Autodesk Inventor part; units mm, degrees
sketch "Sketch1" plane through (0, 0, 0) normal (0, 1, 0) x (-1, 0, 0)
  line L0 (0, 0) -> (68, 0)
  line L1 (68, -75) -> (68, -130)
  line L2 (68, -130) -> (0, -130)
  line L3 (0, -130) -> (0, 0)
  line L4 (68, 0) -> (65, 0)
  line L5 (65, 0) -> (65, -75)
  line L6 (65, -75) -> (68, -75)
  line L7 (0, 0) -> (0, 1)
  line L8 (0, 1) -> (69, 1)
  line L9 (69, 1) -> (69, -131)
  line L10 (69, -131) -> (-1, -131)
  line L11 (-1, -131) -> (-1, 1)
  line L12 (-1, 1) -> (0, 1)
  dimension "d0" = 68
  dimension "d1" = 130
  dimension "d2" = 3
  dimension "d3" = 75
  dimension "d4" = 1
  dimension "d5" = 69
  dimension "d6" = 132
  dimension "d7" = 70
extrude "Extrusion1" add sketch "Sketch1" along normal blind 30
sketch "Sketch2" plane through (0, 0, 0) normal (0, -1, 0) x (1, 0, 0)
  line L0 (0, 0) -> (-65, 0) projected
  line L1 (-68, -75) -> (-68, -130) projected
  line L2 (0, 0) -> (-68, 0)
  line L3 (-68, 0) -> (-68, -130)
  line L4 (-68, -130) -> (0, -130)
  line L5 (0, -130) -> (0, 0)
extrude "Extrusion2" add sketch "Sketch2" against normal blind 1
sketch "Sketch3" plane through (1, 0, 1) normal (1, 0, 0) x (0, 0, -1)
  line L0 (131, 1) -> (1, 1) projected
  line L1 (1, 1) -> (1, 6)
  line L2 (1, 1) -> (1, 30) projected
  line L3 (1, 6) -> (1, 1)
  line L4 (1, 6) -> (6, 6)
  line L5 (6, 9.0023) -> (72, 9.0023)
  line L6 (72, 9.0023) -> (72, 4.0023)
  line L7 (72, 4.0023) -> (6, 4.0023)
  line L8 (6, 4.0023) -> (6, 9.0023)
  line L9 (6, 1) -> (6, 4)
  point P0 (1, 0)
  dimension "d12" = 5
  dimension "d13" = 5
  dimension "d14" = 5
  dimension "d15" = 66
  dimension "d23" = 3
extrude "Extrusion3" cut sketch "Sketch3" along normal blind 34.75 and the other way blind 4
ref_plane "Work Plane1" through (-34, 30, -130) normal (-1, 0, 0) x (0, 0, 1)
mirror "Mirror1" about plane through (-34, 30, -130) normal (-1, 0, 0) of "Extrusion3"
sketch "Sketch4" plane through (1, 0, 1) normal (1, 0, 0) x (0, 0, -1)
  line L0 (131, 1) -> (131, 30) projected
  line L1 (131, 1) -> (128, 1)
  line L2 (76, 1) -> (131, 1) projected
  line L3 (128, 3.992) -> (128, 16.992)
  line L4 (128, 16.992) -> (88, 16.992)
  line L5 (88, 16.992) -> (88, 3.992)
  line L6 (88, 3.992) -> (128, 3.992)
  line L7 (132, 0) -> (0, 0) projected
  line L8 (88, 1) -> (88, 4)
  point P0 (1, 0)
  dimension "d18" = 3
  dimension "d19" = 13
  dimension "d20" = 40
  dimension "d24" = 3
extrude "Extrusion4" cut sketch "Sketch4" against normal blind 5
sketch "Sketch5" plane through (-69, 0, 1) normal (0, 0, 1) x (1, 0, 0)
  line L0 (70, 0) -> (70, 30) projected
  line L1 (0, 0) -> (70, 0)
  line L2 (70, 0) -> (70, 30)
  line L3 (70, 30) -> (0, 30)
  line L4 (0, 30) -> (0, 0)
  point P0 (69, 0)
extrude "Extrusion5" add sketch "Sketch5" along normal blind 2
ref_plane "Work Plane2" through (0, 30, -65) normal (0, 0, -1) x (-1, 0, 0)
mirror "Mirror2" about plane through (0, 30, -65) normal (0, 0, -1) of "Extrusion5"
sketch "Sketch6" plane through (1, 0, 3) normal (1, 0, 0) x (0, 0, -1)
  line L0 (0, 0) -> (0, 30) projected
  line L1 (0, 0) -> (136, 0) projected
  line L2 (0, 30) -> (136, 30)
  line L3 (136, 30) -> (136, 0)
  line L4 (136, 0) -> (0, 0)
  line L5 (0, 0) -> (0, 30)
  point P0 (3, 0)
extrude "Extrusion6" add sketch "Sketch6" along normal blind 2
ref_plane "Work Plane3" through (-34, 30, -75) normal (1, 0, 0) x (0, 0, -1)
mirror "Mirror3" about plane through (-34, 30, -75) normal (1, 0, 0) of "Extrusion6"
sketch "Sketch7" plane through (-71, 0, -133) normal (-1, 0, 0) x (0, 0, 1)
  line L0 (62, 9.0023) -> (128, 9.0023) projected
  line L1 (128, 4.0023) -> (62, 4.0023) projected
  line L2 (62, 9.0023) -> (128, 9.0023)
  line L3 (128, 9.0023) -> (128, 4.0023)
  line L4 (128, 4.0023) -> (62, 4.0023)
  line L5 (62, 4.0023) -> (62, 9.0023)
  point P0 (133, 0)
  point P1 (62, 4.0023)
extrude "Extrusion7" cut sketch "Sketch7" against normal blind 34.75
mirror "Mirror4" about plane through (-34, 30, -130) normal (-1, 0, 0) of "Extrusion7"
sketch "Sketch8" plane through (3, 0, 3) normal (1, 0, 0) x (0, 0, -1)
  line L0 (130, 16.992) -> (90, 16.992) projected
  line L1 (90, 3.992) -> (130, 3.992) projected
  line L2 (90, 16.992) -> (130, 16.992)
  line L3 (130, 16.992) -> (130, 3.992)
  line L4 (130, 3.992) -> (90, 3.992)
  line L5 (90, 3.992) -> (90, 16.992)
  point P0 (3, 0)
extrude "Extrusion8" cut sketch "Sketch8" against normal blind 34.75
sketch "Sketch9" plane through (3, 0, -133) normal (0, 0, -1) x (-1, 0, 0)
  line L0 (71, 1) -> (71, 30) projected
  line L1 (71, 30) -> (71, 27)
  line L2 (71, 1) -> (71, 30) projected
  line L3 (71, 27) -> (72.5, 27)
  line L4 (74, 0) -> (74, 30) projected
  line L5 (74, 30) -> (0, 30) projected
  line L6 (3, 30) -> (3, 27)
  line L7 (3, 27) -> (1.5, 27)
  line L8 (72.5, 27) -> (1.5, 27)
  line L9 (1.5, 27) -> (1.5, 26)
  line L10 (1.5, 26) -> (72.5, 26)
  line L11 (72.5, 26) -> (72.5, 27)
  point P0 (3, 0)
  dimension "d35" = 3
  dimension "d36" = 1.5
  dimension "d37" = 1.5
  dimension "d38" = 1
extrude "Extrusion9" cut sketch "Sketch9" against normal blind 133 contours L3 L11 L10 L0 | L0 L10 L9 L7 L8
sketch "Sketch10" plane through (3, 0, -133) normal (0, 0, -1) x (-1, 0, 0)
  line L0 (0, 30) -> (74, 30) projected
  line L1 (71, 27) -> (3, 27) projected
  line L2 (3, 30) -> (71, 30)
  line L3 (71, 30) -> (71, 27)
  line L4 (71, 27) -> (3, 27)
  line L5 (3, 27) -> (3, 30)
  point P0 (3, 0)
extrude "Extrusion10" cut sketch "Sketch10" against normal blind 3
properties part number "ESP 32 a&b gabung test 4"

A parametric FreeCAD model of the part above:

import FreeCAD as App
import Part
import Sketcher


def add_polygon(sketch, points):
    """Adds a closed chain of lines whose ends are joined by coincident constraints."""
    first, n = sketch.GeometryCount, len(points)
    for a, b in zip(points, points[1:] + points[:1]):
        sketch.addGeometry(Part.LineSegment(App.Vector(*a, 0), App.Vector(*b, 0)), False)
    for i in range(n):
        sketch.addConstraint(Sketcher.Constraint("Coincident", first + i, 2, first + (i + 1) % n, 1))

doc = App.newDocument("Part")
body = doc.addObject("PartDesign::Body", "Body")

# Sketch on XZ plane
sketch1 = body.newObject("Sketcher::SketchObject", "Sketch")
sketch1.AttachmentSupport = (doc.getObject("XZ_Plane"), [""])
sketch1.MapMode = "FlatFace"
add_polygon(sketch1, [(-69, 1), (0, 1), (1, 1), (1, -131), (-69, -131)])  # lines 0-4
add_polygon(sketch1, [(0, -130), (0, 0), (-65, 0), (-65, -75), (-68, -75), (-68, -130)])  # lines 5-10
sketch1.addConstraint([
    Sketcher.Constraint("Horizontal", 0),
    Sketcher.Constraint("Horizontal", 1),
    Sketcher.Constraint("Vertical", 2),
    Sketcher.Constraint("Horizontal", 3),
    Sketcher.Constraint("Vertical", 4),
    Sketcher.Constraint("Vertical", 5),
    Sketcher.Constraint("Horizontal", 6),
    Sketcher.Constraint("Vertical", 7),
    Sketcher.Constraint("Horizontal", 8),
    Sketcher.Constraint("Vertical", 9),
    Sketcher.Constraint("Horizontal", 10),
    Sketcher.Constraint("Coincident", 5, 2, -1, 1),
    Sketcher.Constraint("PointOnObject", 0, 2, -2),
    Sketcher.Constraint("DistanceX", 0, 1, 0, 2, 69.0),
    Sketcher.Constraint("DistanceX", 1, 1, 1, 2, 1.0),
    Sketcher.Constraint("DistanceX", 8, 2, 8, 1, 3.0),
    Sketcher.Constraint("DistanceX", 10, 1, 10, 2, 68.0),
    Sketcher.Constraint("DistanceY", 2, 2, 2, 1, 132.0),
    Sketcher.Constraint("DistanceY", 5, 1, 5, 2, 130.0),
    Sketcher.Constraint("DistanceY", 7, 2, 7, 1, 75.0),
    Sketcher.Constraint("DistanceY", -1, 1, 0, 2, 1.0),
])
pad1 = body.newObject("PartDesign::Pad", "Pad")
pad1.Profile = sketch1
pad1.Length = 30
pad1.Reversed = True

# Sketch on XZ plane
sketch2 = body.newObject("Sketcher::SketchObject", "Sketch001")
sketch2.AttachmentSupport = (doc.getObject("XZ_Plane"), [""])
sketch2.MapMode = "FlatFace"
add_polygon(sketch2, [(0, -130), (0, 0), (-68, 0), (-68, -130)])  # lines 0-3
sketch2.addConstraint([
    Sketcher.Constraint("Vertical", 0),
    Sketcher.Constraint("Horizontal", 1),
    Sketcher.Constraint("Vertical", 2),
    Sketcher.Constraint("Horizontal", 3),
    Sketcher.Constraint("Coincident", 0, 2, -1, 1),
    Sketcher.Constraint("DistanceX", 1, 2, 1, 1, 68.0),
    Sketcher.Constraint("DistanceY", 0, 1, 0, 2, 130.0),
])
pad2 = body.newObject("PartDesign::Pad", "Pad001")
pad2.Profile = sketch2
pad2.Length = 1
pad2.Reversed = True

# Sketch on YZ plane
sketch3 = body.newObject("Sketcher::SketchObject", "Sketch002")
sketch3.AttachmentSupport = (doc.getObject("YZ_Plane"), [""])
sketch3.MapMode = "FlatFace"
sketch3.AttachmentOffset = App.Placement(App.Vector(0, 0, 1), App.Rotation())
add_polygon(sketch3, [(9.0023, -71), (9.0023, -5), (4.0023, -5), (4.0023, -71)])  # lines 0-3
sketch3.addConstraint([
    Sketcher.Constraint("Vertical", 0),
    Sketcher.Constraint("Horizontal", 1),
    Sketcher.Constraint("Vertical", 2),
    Sketcher.Constraint("Horizontal", 3),
    Sketcher.Constraint("DistanceX", 1, 2, 1, 1, 5.0),
    Sketcher.Constraint("DistanceY", 0, 1, 0, 2, 66.0),
    Sketcher.Constraint("DistanceY", 0, 2, -1, 1, 5.0),
    Sketcher.Constraint("DistanceX", -1, 1, 0, 2, 9.0023),
])
pocket1 = body.newObject("PartDesign::Pocket", "Pocket")
pocket1.Profile = sketch3
pocket1.Type = "TwoLengths"
pocket1.Length = 34.75
pocket1.Length2 = 4
pocket1.Reversed = True
doc.recompute()

datumplane = body.newObject("PartDesign::Plane", "DatumPlane")
datumplane.AttachmentSupport = (doc.getObject("YZ_Plane"), [""])
datumplane.MapMode = "FlatFace"
datumplane.AttachmentOffset = App.Placement(App.Vector(0, 0, -34), App.Rotation())
mirrored = body.newObject("PartDesign::Mirrored", "Mirrored")
mirrored.Originals = [pocket1]
mirrored.MirrorPlane = (datumplane, [""])
body.Tip = mirrored

# Sketch on YZ plane
sketch4 = body.newObject("Sketcher::SketchObject", "Sketch003")
sketch4.AttachmentSupport = (doc.getObject("YZ_Plane"), [""])
sketch4.MapMode = "FlatFace"
sketch4.AttachmentOffset = App.Placement(App.Vector(0, 0, 1), App.Rotation())
add_polygon(sketch4, [(3.992, -87), (3.992, -127), (16.992, -127), (16.992, -87)])  # lines 0-3
sketch4.addConstraint([
    Sketcher.Constraint("Vertical", 0),
    Sketcher.Constraint("Horizontal", 1),
    Sketcher.Constraint("Vertical", 2),
    Sketcher.Constraint("Horizontal", 3),
    Sketcher.Constraint("DistanceX", 1, 1, 1, 2, 13.0),
    Sketcher.Constraint("DistanceY", 0, 2, 0, 1, 40.0),
    Sketcher.Constraint("DistanceY", 0, 2, -1, 1, 127.0),
    Sketcher.Constraint("DistanceX", -1, 1, 0, 2, 3.992),
])
pocket2 = body.newObject("PartDesign::Pocket", "Pocket001")
pocket2.Profile = sketch4
pocket2.Length = 5

# Sketch on XY plane
sketch5 = body.newObject("Sketcher::SketchObject", "Sketch004")
sketch5.AttachmentSupport = (doc.getObject("XY_Plane"), [""])
sketch5.MapMode = "FlatFace"
sketch5.AttachmentOffset = App.Placement(App.Vector(0, 0, 1), App.Rotation())
add_polygon(sketch5, [(-69, 0), (1, 0), (1, 30), (-69, 30)])  # lines 0-3
sketch5.addConstraint([
    Sketcher.Constraint("Horizontal", 0),
    Sketcher.Constraint("Vertical", 1),
    Sketcher.Constraint("Horizontal", 2),
    Sketcher.Constraint("Vertical", 3),
    Sketcher.Constraint("PointOnObject", 0, 2, -1),
    Sketcher.Constraint("DistanceX", 0, 1, 0, 2, 70.0),
    Sketcher.Constraint("DistanceY", 1, 1, 1, 2, 30.0),
    Sketcher.Constraint("DistanceX", -1, 1, 0, 2, 1.0),
])
pad3 = body.newObject("PartDesign::Pad", "Pad002")
pad3.Profile = sketch5
pad3.Length = 2
doc.recompute()

datumplane2 = body.newObject("PartDesign::Plane", "DatumPlane001")
datumplane2.AttachmentSupport = (doc.getObject("XY_Plane"), [""])
datumplane2.MapMode = "FlatFace"
datumplane2.AttachmentOffset = App.Placement(App.Vector(0, 0, -65), App.Rotation())
mirrored2 = body.newObject("PartDesign::Mirrored", "Mirrored001")
mirrored2.Originals = [pad3]
mirrored2.MirrorPlane = (datumplane2, [""])
body.Tip = mirrored2

# Sketch on YZ plane
sketch6 = body.newObject("Sketcher::SketchObject", "Sketch005")
sketch6.AttachmentSupport = (doc.getObject("YZ_Plane"), [""])
sketch6.MapMode = "FlatFace"
sketch6.AttachmentOffset = App.Placement(App.Vector(0, 0, 1), App.Rotation())
add_polygon(sketch6, [(30, 3), (0, 3), (0, -133), (30, -133)])  # lines 0-3
sketch6.addConstraint([
    Sketcher.Constraint("Horizontal", 0),
    Sketcher.Constraint("Vertical", 1),
    Sketcher.Constraint("Horizontal", 2),
    Sketcher.Constraint("Vertical", 3),
    Sketcher.Constraint("PointOnObject", 0, 2, -2),
    Sketcher.Constraint("DistanceX", 0, 2, 0, 1, 30.0),
    Sketcher.Constraint("DistanceY", 1, 2, 1, 1, 136.0),
    Sketcher.Constraint("DistanceY", -1, 1, 0, 2, 3.0),
])
pad4 = body.newObject("PartDesign::Pad", "Pad003")
pad4.Profile = sketch6
pad4.Length = 2
doc.recompute()

datumplane3 = body.newObject("PartDesign::Plane", "DatumPlane002")
datumplane3.AttachmentSupport = (doc.getObject("YZ_Plane"), [""])
datumplane3.MapMode = "FlatFace"
datumplane3.AttachmentOffset = App.Placement(App.Vector(0, 0, -34), App.Rotation())
mirrored3 = body.newObject("PartDesign::Mirrored", "Mirrored002")
mirrored3.Originals = [pad4]
mirrored3.MirrorPlane = (datumplane3, [""])
body.Tip = mirrored3

# Sketch on YZ plane
sketch7 = body.newObject("Sketcher::SketchObject", "Sketch006")
sketch7.AttachmentSupport = (doc.getObject("YZ_Plane"), [""])
sketch7.MapMode = "FlatFace"
sketch7.AttachmentOffset = App.Placement(App.Vector(0, 0, -71), App.Rotation())
add_polygon(sketch7, [(9.0023, -5), (9.0023, -71), (4.0023, -71), (4.0023, -5)])  # lines 0-3
sketch7.addConstraint([
    Sketcher.Constraint("Vertical", 0),
    Sketcher.Constraint("Horizontal", 1),
    Sketcher.Constraint("Vertical", 2),
    Sketcher.Constraint("Horizontal", 3),
    Sketcher.Constraint("DistanceX", 1, 2, 1, 1, 5.0),
    Sketcher.Constraint("DistanceY", 0, 2, 0, 1, 66.0),
    Sketcher.Constraint("DistanceY", 0, 2, -1, 1, 71.0),
    Sketcher.Constraint("DistanceX", -1, 1, 0, 2, 9.0023),
])
pocket3 = body.newObject("PartDesign::Pocket", "Pocket002")
pocket3.Profile = sketch7
pocket3.Length = 34.75
pocket3.Reversed = True
doc.recompute()

datumplane4 = body.newObject("PartDesign::Plane", "DatumPlane003")
datumplane4.AttachmentSupport = (doc.getObject("YZ_Plane"), [""])
datumplane4.MapMode = "FlatFace"
datumplane4.AttachmentOffset = App.Placement(App.Vector(0, 0, -34), App.Rotation())
mirrored4 = body.newObject("PartDesign::Mirrored", "Mirrored003")
mirrored4.Originals = [pocket3]
mirrored4.MirrorPlane = (datumplane4, [""])
body.Tip = mirrored4

# Sketch on YZ plane
sketch8 = body.newObject("Sketcher::SketchObject", "Sketch007")
sketch8.AttachmentSupport = (doc.getObject("YZ_Plane"), [""])
sketch8.MapMode = "FlatFace"
sketch8.AttachmentOffset = App.Placement(App.Vector(0, 0, 3), App.Rotation())
add_polygon(sketch8, [(3.992, -127), (16.992, -127), (16.992, -87), (3.992, -87)])  # lines 0-3
sketch8.addConstraint([
    Sketcher.Constraint("Horizontal", 0),
    Sketcher.Constraint("Vertical", 1),
    Sketcher.Constraint("Horizontal", 2),
    Sketcher.Constraint("Vertical", 3),
    Sketcher.Constraint("DistanceX", 0, 1, 0, 2, 13.0),
    Sketcher.Constraint("DistanceY", 1, 1, 1, 2, 40.0),
    Sketcher.Constraint("DistanceY", 0, 2, -1, 1, 127.0),
    Sketcher.Constraint("DistanceX", -1, 1, 0, 2, 16.992),
])
pocket4 = body.newObject("PartDesign::Pocket", "Pocket003")
pocket4.Profile = sketch8
pocket4.Length = 34.75

# Sketch on XY plane
sketch9 = body.newObject("Sketcher::SketchObject", "Sketch008")
sketch9.AttachmentSupport = (doc.getObject("XY_Plane"), [""])
sketch9.MapMode = "FlatFace"
sketch9.AttachmentOffset = App.Placement(App.Vector(0, 0, -133), App.Rotation())
add_polygon(sketch9, [(-69.5, 27), (1.5, 27), (1.5, 26), (-69.5, 26)])  # lines 0-3
sketch9.addConstraint([
    Sketcher.Constraint("Horizontal", 0),
    Sketcher.Constraint("Vertical", 1),
    Sketcher.Constraint("Horizontal", 2),
    Sketcher.Constraint("Vertical", 3),
    Sketcher.Constraint("DistanceY", 1, 2, 1, 1, 1.0),
    Sketcher.Constraint("DistanceX", -1, 1, 0, 2, 1.5),
    Sketcher.Constraint("DistanceX", 0, 1, 0, 2, 71.0),
    Sketcher.Constraint("DistanceY", -1, 1, 0, 2, 27.0),
])
pocket5 = body.newObject("PartDesign::Pocket", "Pocket004")
pocket5.Profile = sketch9
pocket5.Length = 133
pocket5.Reversed = True

# Sketch on XY plane
sketch10 = body.newObject("Sketcher::SketchObject", "Sketch009")
sketch10.AttachmentSupport = (doc.getObject("XY_Plane"), [""])
sketch10.MapMode = "FlatFace"
sketch10.AttachmentOffset = App.Placement(App.Vector(0, 0, -133), App.Rotation())
add_polygon(sketch10, [(-68, 30), (0, 30), (0, 27), (-68, 27)])  # lines 0-3
sketch10.addConstraint([
    Sketcher.Constraint("Horizontal", 0),
    Sketcher.Constraint("Vertical", 1),
    Sketcher.Constraint("Horizontal", 2),
    Sketcher.Constraint("Vertical", 3),
    Sketcher.Constraint("PointOnObject", 0, 2, -2),
    Sketcher.Constraint("DistanceX", 0, 1, 0, 2, 68.0),
    Sketcher.Constraint("DistanceY", 1, 2, 1, 1, 3.0),
    Sketcher.Constraint("DistanceY", -1, 1, 0, 2, 30.0),
])
pocket6 = body.newObject("PartDesign::Pocket", "Pocket005")
pocket6.Profile = sketch10
pocket6.Length = 3
pocket6.Reversed = True

doc.recompute()
